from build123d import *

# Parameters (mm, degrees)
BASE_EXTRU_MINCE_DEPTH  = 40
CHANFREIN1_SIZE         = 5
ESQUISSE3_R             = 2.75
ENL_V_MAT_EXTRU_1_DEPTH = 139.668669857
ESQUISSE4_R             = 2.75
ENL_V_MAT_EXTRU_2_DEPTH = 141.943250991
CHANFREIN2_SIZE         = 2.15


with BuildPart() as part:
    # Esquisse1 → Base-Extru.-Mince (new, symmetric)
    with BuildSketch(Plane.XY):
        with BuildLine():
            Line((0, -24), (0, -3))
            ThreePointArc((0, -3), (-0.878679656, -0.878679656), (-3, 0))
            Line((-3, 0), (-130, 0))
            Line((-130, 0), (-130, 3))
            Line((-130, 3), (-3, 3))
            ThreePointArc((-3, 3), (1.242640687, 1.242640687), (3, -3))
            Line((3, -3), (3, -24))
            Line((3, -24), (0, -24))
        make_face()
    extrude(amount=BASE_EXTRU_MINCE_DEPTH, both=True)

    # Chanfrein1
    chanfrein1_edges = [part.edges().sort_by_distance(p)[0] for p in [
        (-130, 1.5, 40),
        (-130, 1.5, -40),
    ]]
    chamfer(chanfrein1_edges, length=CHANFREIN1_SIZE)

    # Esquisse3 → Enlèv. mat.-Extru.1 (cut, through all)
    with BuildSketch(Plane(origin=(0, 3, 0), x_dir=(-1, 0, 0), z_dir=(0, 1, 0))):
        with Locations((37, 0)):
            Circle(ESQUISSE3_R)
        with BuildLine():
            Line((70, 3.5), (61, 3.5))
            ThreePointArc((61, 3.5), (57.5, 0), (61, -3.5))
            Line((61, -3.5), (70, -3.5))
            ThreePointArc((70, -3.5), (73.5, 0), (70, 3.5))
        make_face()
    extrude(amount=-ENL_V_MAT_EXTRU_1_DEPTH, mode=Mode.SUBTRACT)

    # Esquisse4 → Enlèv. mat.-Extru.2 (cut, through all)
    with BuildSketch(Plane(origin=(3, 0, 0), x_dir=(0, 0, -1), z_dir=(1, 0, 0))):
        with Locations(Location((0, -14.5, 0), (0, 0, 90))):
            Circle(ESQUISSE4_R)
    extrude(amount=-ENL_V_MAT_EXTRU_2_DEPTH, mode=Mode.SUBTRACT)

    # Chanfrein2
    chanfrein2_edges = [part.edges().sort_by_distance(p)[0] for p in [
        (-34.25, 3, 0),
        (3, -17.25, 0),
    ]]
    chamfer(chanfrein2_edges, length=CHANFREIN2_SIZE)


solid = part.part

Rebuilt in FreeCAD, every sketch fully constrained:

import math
import FreeCAD as App
import Part
import Sketcher


def edges_at(feature, points):
    """Names of the edges that pass closest to the given points."""
    edges = feature.Shape.Edges
    near = lambda p: min(range(len(edges)), key=lambda i: edges[i].distToShape(Part.Vertex(*p))[0])
    return sorted({f"Edge{near(p) + 1}" for p in points})

doc = App.newDocument("Part")
params = doc.addObject("Spreadsheet::Sheet", "Params")
for row, (alias, value) in enumerate([
    ("sketch1_radius", "6 mm"),
    ("sketch1_width", "127 mm"),
    ("sketch1_height", "21 mm"),
    ("pad1_length", "80 mm"),
    ("chamfer_size", "5 mm"),
    ("sketch2_diameter", "5.5 mm"),
    ("sketch2_radius", "3.5 mm"),
    ("sketch2_width", "9 mm"),
    ("sketch3_diameter", "5.5 mm"),
    ("chamfer2_size", "2.15 mm"),
], start=1):
    params.set(f"A{row}", alias)
    params.set(f"B{row}", "=" + value)
    params.setAlias(f"B{row}", alias)

body = doc.addObject("PartDesign::Body", "Body")

sketch1 = body.newObject("Sketcher::SketchObject", "Sketch")
sketch1.AttachmentSupport = (doc.getObject("XY_Plane"), [""])
sketch1.MapMode = "FlatFace"
sketch1.addGeometry(Part.LineSegment(App.Vector(0, -3, 0), App.Vector(0, -24, 0)), False)
sketch1.addGeometry(Part.LineSegment(App.Vector(0, -24, 0), App.Vector(3, -24, 0)), False)
sketch1.addGeometry(Part.LineSegment(App.Vector(3, -24, 0), App.Vector(3, -3, 0)), False)
sketch1.addGeometry(Part.ArcOfCircle(Part.Circle(App.Vector(-3, -3, 0), App.Vector(0, 0, 1), 6), math.radians(0), math.radians(90)), False)
sketch1.addGeometry(Part.LineSegment(App.Vector(-3, 3, 0), App.Vector(-130, 3, 0)), False)
sketch1.addGeometry(Part.LineSegment(App.Vector(-130, 3, 0), App.Vector(-130, 0, 0)), False)
sketch1.addGeometry(Part.LineSegment(App.Vector(-130, 0, 0), App.Vector(-3, 0, 0)), False)
sketch1.addGeometry(Part.ArcOfCircle(Part.Circle(App.Vector(-3, -3, 0), App.Vector(0, 0, 1), 3), math.radians(0), math.radians(90)), False)
sketch1.addConstraint(Sketcher.Constraint("Coincident", 0, 2, 1, 1))
sketch1.addConstraint(Sketcher.Constraint("Coincident", 1, 2, 2, 1))
sketch1.addConstraint(Sketcher.Constraint("Tangent", 2, 2, 3, 1))
sketch1.addConstraint(Sketcher.Constraint("Tangent", 3, 2, 4, 1))
sketch1.addConstraint(Sketcher.Constraint("Coincident", 4, 2, 5, 1))
sketch1.addConstraint(Sketcher.Constraint("Coincident", 5, 2, 6, 1))
sketch1.addConstraint(Sketcher.Constraint("Tangent", 6, 2, 7, 2))
sketch1.addConstraint(Sketcher.Constraint("Tangent", 7, 1, 0, 1))
sketch1.addConstraint(Sketcher.Constraint("Vertical", 0))
sketch1.addConstraint(Sketcher.Constraint("Horizontal", 1))
sketch1.addConstraint(Sketcher.Constraint("Vertical", 2))
sketch1.addConstraint(Sketcher.Constraint("Horizontal", 4))
sketch1.addConstraint(Sketcher.Constraint("Vertical", 5))
sketch1.addConstraint(Sketcher.Constraint("Horizontal", 6))
sketch1.addConstraint(Sketcher.Constraint("Coincident", 7, 3, 3, 3))
sketch1.addConstraint(Sketcher.Constraint("Symmetric", 2, 2, 3, 2, -1, 1))
sketch1.addConstraint(Sketcher.Constraint("PointOnObject", 0, 2, -2))
sketch1.addConstraint(Sketcher.Constraint("Radius", 3, 6.0))
sketch1.addConstraint(Sketcher.Constraint("DistanceX", 4, 2, 4, 1, 127.0))
sketch1.addConstraint(Sketcher.Constraint("DistanceY", 0, 2, 0, 1, 21.0))
sketch1.setExpression("Constraints[17]", "Params.sketch1_radius")
sketch1.setExpression("Constraints[18]", "Params.sketch1_width")
sketch1.setExpression("Constraints[19]", "Params.sketch1_height")
pad1 = body.newObject("PartDesign::Pad", "Pad")
pad1.Profile = sketch1
pad1.setExpression("Length", "Params.pad1_length")
pad1.Midplane = True
doc.recompute()

chamfer = body.newObject("PartDesign::Chamfer", "Chamfer")
chamfer.Base = (pad1, edges_at(pad1, [(-130, 1.5, 40), (-130, 1.5, -40)]))
chamfer.setExpression("Size", "Params.chamfer_size")

sketch2 = body.newObject("Sketcher::SketchObject", "Sketch001")
sketch2.AttachmentSupport = (doc.getObject("XZ_Plane"), [""])
sketch2.MapMode = "FlatFace"
sketch2.AttachmentOffset = App.Placement(App.Vector(0, 0, -3), App.Rotation())
sketch2.addGeometry(Part.Circle(App.Vector(-37, 0, 0), App.Vector(0, 0, 1), 2.8), False)
sketch2.addGeometry(Part.LineSegment(App.Vector(-70, 3.5, 0), App.Vector(-61, 3.5, 0)), False)
sketch2.addGeometry(Part.ArcOfCircle(Part.Circle(App.Vector(-61, 0, 0), App.Vector(0, 0, 1), 3.5), math.radians(-90), math.radians(90)), False)
sketch2.addGeometry(Part.LineSegment(App.Vector(-61, -3.5, 0), App.Vector(-70, -3.5, 0)), False)
sketch2.addGeometry(Part.ArcOfCircle(Part.Circle(App.Vector(-70, 0, 0), App.Vector(0, 0, 1), 3.5), math.radians(90), math.radians(270)), False)
sketch2.addConstraint(Sketcher.Constraint("Tangent", 1, 2, 2, 2))
sketch2.addConstraint(Sketcher.Constraint("Tangent", 2, 1, 3, 1))
sketch2.addConstraint(Sketcher.Constraint("Tangent", 3, 2, 4, 2))
sketch2.addConstraint(Sketcher.Constraint("Tangent", 4, 1, 1, 1))
sketch2.addConstraint(Sketcher.Constraint("Horizontal", 1))
sketch2.addConstraint(Sketcher.Constraint("Horizontal", 3))
sketch2.addConstraint(Sketcher.Constraint("PointOnObject", 0, 3, -1))
sketch2.addConstraint(Sketcher.Constraint("PointOnObject", 2, 3, -1))
sketch2.addConstraint(Sketcher.Constraint("Diameter", 0, 5.5))
sketch2.addConstraint(Sketcher.Constraint("Radius", 2, 3.5))
sketch2.addConstraint(Sketcher.Constraint("DistanceX", 1, 1, 1, 2, 9.0))
sketch2.addConstraint(Sketcher.Constraint("DistanceX", 0, 3, -1, 1, 37.0))
sketch2.addConstraint(Sketcher.Constraint("DistanceX", 2, 3, -1, 1, 61.0))
sketch2.setExpression("Constraints[8]", "Params.sketch2_diameter")
sketch2.setExpression("Constraints[9]", "Params.sketch2_radius")
sketch2.setExpression("Constraints[10]", "Params.sketch2_width")
pocket1 = body.newObject("PartDesign::Pocket", "Pocket")
pocket1.Profile = sketch2
pocket1.Type = "ThroughAll"
pocket1.Reversed = True

sketch3 = body.newObject("Sketcher::SketchObject", "Sketch002")
sketch3.AttachmentSupport = (doc.getObject("YZ_Plane"), [""])
sketch3.MapMode = "FlatFace"
sketch3.AttachmentOffset = App.Placement(App.Vector(0, 0, 3), App.Rotation())
sketch3.addGeometry(Part.Circle(App.Vector(-14.5, 0, 0), App.Vector(0, 0, 1), 2.8), False)
sketch3.addConstraint(Sketcher.Constraint("PointOnObject", 0, 3, -1))
sketch3.addConstraint(Sketcher.Constraint("Diameter", 0, 5.5))
sketch3.addConstraint(Sketcher.Constraint("DistanceX", 0, 3, -1, 1, 14.5))
sketch3.setExpression("Constraints[1]", "Params.sketch3_diameter")
pocket2 = body.newObject("PartDesign::Pocket", "Pocket001")
pocket2.Profile = sketch3
pocket2.Type = "ThroughAll"
doc.recompute()

chamfer2 = body.newObject("PartDesign::Chamfer", "Chamfer001")
chamfer2.Base = (pocket2, edges_at(pocket2, [(-34.25, 3, 0), (3, -17.25, 0)]))
chamfer2.setExpression("Size", "Params.chamfer2_size")

doc.recompute()
